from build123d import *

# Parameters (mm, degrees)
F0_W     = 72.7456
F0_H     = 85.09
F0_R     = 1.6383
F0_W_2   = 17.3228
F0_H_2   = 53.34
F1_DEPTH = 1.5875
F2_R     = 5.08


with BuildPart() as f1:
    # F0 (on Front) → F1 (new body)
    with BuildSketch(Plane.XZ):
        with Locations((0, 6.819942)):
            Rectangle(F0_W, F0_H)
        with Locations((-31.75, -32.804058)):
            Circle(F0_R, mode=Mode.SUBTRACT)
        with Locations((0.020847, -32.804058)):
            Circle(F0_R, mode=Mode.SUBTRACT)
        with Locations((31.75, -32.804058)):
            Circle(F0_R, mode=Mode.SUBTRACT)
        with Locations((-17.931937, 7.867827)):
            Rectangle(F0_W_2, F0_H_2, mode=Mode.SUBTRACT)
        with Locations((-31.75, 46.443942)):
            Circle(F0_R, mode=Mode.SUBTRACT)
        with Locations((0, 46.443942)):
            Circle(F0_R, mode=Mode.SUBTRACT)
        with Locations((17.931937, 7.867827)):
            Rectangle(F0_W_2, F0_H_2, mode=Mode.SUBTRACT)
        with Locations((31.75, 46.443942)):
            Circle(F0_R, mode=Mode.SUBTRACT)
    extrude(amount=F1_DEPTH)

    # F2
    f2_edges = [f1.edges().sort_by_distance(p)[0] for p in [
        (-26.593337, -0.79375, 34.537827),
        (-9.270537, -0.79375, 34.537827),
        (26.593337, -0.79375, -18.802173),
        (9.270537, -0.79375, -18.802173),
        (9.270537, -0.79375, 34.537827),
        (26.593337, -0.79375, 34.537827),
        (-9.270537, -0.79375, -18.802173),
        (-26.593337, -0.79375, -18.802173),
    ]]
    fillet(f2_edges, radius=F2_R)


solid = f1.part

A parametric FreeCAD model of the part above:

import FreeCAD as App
import Part
import Sketcher

V = App.Vector
Q = App.Units.Quantity


def edges_at(feature, points):
    """Names of the edges that pass closest to the given points."""
    edges = feature.Shape.Edges
    near = lambda p: min(range(len(edges)), key=lambda i: edges[i].distToShape(Part.Vertex(*p))[0])
    return sorted({f"Edge{near(p) + 1}" for p in points})


def add_polygon(sketch, points):
    """Adds a closed chain of lines whose ends are joined by coincident constraints."""
    first, n = sketch.GeometryCount, len(points)
    for a, b in zip(points, points[1:] + points[:1]):
        sketch.addGeometry(Part.LineSegment(App.Vector(*a, 0), App.Vector(*b, 0)), False)
    for i in range(n):
        sketch.addConstraint(Sketcher.Constraint("Coincident", first + i, 2, first + (i + 1) % n, 1))

doc = App.newDocument("Part")
body = doc.addObject("PartDesign::Body", "Body")

# Sketch on XZ plane
sketch1 = body.newObject("Sketcher::SketchObject", "Sketch")
sketch1.AttachmentSupport = (doc.getObject("XZ_Plane"), [""])
sketch1.MapMode = "FlatFace"
add_polygon(sketch1, [(-36.4, 49.4), (-36.4, -35.7), (36.4, -35.7), (36.4, 49.4)])  # lines 0-3
sketch1.addGeometry(Part.Circle(V(-31.8, -32.8, 0), V(0, 0, 1), 1.6), False)  # 4
sketch1.addGeometry(Part.Circle(V(0, -32.8, 0), V(0, 0, 1), 1.6), False)  # 5
sketch1.addGeometry(Part.Circle(V(31.8, -32.8, 0), V(0, 0, 1), 1.6), False)  # 6
add_polygon(sketch1, [(-9.3, -18.8), (-26.6, -18.8), (-26.6, 34.5), (-9.3, 34.5)])  # lines 7-10
sketch1.addGeometry(Part.Circle(V(-31.8, 46.4, 0), V(0, 0, 1), 1.6), False)  # 11
add_polygon(sketch1, [(26.6, -18.8), (9.3, -18.8), (9.3, 34.5), (26.6, 34.5)])  # lines 12-15
sketch1.addGeometry(Part.Circle(V(0, 46.4, 0), V(0, 0, 1), 1.6), False)  # 16
sketch1.addGeometry(Part.Circle(V(31.8, 46.4, 0), V(0, 0, 1), 1.6), False)  # 17
sketch1.addConstraint([
    Sketcher.Constraint("Vertical", 0),
    Sketcher.Constraint("Horizontal", 1),
    Sketcher.Constraint("Vertical", 2),
    Sketcher.Constraint("Horizontal", 3),
    Sketcher.Constraint("Horizontal", 7),
    Sketcher.Constraint("Vertical", 8),
    Sketcher.Constraint("Horizontal", 9),
    Sketcher.Constraint("Vertical", 10),
    Sketcher.Constraint("Horizontal", 12),
    Sketcher.Constraint("Vertical", 13),
    Sketcher.Constraint("Horizontal", 14),
    Sketcher.Constraint("Vertical", 15),
    Sketcher.Constraint("Equal", 4, 5),
    Sketcher.Constraint("Equal", 5, 6),
    Sketcher.Constraint("Equal", 6, 11),
    Sketcher.Constraint("Equal", 11, 16),
    Sketcher.Constraint("Equal", 16, 17),
    Sketcher.Constraint("Symmetric", 4, 3, 6, 3, -2),
    Sketcher.Constraint("Symmetric", 11, 3, 17, 3, -2),
    Sketcher.Constraint("Symmetric", 10, 2, 12, 2, -2),
    Sketcher.Constraint("Symmetric", 8, 2, 14, 2, -2),
    Sketcher.Constraint("PointOnObject", 16, 3, -2),
    Sketcher.Constraint("Horizontal", 4, 3, 5, 3),
    Sketcher.Constraint("Horizontal", 11, 3, 16, 3),
    Sketcher.Constraint("Vertical", 4, 3, 11, 3),
    Sketcher.Constraint("Diameter", 4, Q("0.129 in")),
    Sketcher.Constraint("DistanceY", 8, 1, 8, 2, Q("2.1 in")),
    Sketcher.Constraint("DistanceY", 0, 2, 0, 1, Q("3.35 in")),
    Sketcher.Constraint("DistanceX", 4, 3, 6, 3, Q("2.5 in")),
    Sketcher.Constraint("DistanceX", 1, 1, 1, 2, Q("2.864 in")),
    Sketcher.Constraint("DistanceX", 7, 2, 7, 1, Q("0.682 in")),
    Sketcher.Constraint("DistanceY", 4, 3, 11, 3, Q("3.12 in")),
    Sketcher.Constraint("DistanceX", 0, 2, -1, 1, Q("1.432 in")),
    Sketcher.Constraint("DistanceY", 0, 2, 4, 3, Q("0.115 in")),
    Sketcher.Constraint("DistanceX", 5, 3, 12, 2, Q("9.24969 mm")),
    Sketcher.Constraint("DistanceY", 4, 3, -1, 1, Q("32.804058 mm")),
    Sketcher.Constraint("DistanceX", -1, 1, 5, 3, Q("0.020847 mm")),
    Sketcher.Constraint("DistanceY", 7, 2, -1, 1, Q("18.802173 mm")),
])
pad1 = body.newObject("PartDesign::Pad", "Pad")
pad1.Profile = sketch1
pad1.Length = Q("0.0625 in")
doc.recompute()

fillet = body.newObject("PartDesign::Fillet", "Fillet")
fillet.Base = (pad1, edges_at(pad1, [
    (-26.593, -0.794, 34.538),
    (-9.271, -0.794, 34.538),
    (26.593, -0.794, -18.802),
    (9.271, -0.794, -18.802),
    (9.271, -0.794, 34.538),
    (26.593, -0.794, 34.538),
    (-9.271, -0.794, -18.802),
    (-26.593, -0.794, -18.802),
]))
fillet.Radius = Q("0.2 in")

doc.recompute()
